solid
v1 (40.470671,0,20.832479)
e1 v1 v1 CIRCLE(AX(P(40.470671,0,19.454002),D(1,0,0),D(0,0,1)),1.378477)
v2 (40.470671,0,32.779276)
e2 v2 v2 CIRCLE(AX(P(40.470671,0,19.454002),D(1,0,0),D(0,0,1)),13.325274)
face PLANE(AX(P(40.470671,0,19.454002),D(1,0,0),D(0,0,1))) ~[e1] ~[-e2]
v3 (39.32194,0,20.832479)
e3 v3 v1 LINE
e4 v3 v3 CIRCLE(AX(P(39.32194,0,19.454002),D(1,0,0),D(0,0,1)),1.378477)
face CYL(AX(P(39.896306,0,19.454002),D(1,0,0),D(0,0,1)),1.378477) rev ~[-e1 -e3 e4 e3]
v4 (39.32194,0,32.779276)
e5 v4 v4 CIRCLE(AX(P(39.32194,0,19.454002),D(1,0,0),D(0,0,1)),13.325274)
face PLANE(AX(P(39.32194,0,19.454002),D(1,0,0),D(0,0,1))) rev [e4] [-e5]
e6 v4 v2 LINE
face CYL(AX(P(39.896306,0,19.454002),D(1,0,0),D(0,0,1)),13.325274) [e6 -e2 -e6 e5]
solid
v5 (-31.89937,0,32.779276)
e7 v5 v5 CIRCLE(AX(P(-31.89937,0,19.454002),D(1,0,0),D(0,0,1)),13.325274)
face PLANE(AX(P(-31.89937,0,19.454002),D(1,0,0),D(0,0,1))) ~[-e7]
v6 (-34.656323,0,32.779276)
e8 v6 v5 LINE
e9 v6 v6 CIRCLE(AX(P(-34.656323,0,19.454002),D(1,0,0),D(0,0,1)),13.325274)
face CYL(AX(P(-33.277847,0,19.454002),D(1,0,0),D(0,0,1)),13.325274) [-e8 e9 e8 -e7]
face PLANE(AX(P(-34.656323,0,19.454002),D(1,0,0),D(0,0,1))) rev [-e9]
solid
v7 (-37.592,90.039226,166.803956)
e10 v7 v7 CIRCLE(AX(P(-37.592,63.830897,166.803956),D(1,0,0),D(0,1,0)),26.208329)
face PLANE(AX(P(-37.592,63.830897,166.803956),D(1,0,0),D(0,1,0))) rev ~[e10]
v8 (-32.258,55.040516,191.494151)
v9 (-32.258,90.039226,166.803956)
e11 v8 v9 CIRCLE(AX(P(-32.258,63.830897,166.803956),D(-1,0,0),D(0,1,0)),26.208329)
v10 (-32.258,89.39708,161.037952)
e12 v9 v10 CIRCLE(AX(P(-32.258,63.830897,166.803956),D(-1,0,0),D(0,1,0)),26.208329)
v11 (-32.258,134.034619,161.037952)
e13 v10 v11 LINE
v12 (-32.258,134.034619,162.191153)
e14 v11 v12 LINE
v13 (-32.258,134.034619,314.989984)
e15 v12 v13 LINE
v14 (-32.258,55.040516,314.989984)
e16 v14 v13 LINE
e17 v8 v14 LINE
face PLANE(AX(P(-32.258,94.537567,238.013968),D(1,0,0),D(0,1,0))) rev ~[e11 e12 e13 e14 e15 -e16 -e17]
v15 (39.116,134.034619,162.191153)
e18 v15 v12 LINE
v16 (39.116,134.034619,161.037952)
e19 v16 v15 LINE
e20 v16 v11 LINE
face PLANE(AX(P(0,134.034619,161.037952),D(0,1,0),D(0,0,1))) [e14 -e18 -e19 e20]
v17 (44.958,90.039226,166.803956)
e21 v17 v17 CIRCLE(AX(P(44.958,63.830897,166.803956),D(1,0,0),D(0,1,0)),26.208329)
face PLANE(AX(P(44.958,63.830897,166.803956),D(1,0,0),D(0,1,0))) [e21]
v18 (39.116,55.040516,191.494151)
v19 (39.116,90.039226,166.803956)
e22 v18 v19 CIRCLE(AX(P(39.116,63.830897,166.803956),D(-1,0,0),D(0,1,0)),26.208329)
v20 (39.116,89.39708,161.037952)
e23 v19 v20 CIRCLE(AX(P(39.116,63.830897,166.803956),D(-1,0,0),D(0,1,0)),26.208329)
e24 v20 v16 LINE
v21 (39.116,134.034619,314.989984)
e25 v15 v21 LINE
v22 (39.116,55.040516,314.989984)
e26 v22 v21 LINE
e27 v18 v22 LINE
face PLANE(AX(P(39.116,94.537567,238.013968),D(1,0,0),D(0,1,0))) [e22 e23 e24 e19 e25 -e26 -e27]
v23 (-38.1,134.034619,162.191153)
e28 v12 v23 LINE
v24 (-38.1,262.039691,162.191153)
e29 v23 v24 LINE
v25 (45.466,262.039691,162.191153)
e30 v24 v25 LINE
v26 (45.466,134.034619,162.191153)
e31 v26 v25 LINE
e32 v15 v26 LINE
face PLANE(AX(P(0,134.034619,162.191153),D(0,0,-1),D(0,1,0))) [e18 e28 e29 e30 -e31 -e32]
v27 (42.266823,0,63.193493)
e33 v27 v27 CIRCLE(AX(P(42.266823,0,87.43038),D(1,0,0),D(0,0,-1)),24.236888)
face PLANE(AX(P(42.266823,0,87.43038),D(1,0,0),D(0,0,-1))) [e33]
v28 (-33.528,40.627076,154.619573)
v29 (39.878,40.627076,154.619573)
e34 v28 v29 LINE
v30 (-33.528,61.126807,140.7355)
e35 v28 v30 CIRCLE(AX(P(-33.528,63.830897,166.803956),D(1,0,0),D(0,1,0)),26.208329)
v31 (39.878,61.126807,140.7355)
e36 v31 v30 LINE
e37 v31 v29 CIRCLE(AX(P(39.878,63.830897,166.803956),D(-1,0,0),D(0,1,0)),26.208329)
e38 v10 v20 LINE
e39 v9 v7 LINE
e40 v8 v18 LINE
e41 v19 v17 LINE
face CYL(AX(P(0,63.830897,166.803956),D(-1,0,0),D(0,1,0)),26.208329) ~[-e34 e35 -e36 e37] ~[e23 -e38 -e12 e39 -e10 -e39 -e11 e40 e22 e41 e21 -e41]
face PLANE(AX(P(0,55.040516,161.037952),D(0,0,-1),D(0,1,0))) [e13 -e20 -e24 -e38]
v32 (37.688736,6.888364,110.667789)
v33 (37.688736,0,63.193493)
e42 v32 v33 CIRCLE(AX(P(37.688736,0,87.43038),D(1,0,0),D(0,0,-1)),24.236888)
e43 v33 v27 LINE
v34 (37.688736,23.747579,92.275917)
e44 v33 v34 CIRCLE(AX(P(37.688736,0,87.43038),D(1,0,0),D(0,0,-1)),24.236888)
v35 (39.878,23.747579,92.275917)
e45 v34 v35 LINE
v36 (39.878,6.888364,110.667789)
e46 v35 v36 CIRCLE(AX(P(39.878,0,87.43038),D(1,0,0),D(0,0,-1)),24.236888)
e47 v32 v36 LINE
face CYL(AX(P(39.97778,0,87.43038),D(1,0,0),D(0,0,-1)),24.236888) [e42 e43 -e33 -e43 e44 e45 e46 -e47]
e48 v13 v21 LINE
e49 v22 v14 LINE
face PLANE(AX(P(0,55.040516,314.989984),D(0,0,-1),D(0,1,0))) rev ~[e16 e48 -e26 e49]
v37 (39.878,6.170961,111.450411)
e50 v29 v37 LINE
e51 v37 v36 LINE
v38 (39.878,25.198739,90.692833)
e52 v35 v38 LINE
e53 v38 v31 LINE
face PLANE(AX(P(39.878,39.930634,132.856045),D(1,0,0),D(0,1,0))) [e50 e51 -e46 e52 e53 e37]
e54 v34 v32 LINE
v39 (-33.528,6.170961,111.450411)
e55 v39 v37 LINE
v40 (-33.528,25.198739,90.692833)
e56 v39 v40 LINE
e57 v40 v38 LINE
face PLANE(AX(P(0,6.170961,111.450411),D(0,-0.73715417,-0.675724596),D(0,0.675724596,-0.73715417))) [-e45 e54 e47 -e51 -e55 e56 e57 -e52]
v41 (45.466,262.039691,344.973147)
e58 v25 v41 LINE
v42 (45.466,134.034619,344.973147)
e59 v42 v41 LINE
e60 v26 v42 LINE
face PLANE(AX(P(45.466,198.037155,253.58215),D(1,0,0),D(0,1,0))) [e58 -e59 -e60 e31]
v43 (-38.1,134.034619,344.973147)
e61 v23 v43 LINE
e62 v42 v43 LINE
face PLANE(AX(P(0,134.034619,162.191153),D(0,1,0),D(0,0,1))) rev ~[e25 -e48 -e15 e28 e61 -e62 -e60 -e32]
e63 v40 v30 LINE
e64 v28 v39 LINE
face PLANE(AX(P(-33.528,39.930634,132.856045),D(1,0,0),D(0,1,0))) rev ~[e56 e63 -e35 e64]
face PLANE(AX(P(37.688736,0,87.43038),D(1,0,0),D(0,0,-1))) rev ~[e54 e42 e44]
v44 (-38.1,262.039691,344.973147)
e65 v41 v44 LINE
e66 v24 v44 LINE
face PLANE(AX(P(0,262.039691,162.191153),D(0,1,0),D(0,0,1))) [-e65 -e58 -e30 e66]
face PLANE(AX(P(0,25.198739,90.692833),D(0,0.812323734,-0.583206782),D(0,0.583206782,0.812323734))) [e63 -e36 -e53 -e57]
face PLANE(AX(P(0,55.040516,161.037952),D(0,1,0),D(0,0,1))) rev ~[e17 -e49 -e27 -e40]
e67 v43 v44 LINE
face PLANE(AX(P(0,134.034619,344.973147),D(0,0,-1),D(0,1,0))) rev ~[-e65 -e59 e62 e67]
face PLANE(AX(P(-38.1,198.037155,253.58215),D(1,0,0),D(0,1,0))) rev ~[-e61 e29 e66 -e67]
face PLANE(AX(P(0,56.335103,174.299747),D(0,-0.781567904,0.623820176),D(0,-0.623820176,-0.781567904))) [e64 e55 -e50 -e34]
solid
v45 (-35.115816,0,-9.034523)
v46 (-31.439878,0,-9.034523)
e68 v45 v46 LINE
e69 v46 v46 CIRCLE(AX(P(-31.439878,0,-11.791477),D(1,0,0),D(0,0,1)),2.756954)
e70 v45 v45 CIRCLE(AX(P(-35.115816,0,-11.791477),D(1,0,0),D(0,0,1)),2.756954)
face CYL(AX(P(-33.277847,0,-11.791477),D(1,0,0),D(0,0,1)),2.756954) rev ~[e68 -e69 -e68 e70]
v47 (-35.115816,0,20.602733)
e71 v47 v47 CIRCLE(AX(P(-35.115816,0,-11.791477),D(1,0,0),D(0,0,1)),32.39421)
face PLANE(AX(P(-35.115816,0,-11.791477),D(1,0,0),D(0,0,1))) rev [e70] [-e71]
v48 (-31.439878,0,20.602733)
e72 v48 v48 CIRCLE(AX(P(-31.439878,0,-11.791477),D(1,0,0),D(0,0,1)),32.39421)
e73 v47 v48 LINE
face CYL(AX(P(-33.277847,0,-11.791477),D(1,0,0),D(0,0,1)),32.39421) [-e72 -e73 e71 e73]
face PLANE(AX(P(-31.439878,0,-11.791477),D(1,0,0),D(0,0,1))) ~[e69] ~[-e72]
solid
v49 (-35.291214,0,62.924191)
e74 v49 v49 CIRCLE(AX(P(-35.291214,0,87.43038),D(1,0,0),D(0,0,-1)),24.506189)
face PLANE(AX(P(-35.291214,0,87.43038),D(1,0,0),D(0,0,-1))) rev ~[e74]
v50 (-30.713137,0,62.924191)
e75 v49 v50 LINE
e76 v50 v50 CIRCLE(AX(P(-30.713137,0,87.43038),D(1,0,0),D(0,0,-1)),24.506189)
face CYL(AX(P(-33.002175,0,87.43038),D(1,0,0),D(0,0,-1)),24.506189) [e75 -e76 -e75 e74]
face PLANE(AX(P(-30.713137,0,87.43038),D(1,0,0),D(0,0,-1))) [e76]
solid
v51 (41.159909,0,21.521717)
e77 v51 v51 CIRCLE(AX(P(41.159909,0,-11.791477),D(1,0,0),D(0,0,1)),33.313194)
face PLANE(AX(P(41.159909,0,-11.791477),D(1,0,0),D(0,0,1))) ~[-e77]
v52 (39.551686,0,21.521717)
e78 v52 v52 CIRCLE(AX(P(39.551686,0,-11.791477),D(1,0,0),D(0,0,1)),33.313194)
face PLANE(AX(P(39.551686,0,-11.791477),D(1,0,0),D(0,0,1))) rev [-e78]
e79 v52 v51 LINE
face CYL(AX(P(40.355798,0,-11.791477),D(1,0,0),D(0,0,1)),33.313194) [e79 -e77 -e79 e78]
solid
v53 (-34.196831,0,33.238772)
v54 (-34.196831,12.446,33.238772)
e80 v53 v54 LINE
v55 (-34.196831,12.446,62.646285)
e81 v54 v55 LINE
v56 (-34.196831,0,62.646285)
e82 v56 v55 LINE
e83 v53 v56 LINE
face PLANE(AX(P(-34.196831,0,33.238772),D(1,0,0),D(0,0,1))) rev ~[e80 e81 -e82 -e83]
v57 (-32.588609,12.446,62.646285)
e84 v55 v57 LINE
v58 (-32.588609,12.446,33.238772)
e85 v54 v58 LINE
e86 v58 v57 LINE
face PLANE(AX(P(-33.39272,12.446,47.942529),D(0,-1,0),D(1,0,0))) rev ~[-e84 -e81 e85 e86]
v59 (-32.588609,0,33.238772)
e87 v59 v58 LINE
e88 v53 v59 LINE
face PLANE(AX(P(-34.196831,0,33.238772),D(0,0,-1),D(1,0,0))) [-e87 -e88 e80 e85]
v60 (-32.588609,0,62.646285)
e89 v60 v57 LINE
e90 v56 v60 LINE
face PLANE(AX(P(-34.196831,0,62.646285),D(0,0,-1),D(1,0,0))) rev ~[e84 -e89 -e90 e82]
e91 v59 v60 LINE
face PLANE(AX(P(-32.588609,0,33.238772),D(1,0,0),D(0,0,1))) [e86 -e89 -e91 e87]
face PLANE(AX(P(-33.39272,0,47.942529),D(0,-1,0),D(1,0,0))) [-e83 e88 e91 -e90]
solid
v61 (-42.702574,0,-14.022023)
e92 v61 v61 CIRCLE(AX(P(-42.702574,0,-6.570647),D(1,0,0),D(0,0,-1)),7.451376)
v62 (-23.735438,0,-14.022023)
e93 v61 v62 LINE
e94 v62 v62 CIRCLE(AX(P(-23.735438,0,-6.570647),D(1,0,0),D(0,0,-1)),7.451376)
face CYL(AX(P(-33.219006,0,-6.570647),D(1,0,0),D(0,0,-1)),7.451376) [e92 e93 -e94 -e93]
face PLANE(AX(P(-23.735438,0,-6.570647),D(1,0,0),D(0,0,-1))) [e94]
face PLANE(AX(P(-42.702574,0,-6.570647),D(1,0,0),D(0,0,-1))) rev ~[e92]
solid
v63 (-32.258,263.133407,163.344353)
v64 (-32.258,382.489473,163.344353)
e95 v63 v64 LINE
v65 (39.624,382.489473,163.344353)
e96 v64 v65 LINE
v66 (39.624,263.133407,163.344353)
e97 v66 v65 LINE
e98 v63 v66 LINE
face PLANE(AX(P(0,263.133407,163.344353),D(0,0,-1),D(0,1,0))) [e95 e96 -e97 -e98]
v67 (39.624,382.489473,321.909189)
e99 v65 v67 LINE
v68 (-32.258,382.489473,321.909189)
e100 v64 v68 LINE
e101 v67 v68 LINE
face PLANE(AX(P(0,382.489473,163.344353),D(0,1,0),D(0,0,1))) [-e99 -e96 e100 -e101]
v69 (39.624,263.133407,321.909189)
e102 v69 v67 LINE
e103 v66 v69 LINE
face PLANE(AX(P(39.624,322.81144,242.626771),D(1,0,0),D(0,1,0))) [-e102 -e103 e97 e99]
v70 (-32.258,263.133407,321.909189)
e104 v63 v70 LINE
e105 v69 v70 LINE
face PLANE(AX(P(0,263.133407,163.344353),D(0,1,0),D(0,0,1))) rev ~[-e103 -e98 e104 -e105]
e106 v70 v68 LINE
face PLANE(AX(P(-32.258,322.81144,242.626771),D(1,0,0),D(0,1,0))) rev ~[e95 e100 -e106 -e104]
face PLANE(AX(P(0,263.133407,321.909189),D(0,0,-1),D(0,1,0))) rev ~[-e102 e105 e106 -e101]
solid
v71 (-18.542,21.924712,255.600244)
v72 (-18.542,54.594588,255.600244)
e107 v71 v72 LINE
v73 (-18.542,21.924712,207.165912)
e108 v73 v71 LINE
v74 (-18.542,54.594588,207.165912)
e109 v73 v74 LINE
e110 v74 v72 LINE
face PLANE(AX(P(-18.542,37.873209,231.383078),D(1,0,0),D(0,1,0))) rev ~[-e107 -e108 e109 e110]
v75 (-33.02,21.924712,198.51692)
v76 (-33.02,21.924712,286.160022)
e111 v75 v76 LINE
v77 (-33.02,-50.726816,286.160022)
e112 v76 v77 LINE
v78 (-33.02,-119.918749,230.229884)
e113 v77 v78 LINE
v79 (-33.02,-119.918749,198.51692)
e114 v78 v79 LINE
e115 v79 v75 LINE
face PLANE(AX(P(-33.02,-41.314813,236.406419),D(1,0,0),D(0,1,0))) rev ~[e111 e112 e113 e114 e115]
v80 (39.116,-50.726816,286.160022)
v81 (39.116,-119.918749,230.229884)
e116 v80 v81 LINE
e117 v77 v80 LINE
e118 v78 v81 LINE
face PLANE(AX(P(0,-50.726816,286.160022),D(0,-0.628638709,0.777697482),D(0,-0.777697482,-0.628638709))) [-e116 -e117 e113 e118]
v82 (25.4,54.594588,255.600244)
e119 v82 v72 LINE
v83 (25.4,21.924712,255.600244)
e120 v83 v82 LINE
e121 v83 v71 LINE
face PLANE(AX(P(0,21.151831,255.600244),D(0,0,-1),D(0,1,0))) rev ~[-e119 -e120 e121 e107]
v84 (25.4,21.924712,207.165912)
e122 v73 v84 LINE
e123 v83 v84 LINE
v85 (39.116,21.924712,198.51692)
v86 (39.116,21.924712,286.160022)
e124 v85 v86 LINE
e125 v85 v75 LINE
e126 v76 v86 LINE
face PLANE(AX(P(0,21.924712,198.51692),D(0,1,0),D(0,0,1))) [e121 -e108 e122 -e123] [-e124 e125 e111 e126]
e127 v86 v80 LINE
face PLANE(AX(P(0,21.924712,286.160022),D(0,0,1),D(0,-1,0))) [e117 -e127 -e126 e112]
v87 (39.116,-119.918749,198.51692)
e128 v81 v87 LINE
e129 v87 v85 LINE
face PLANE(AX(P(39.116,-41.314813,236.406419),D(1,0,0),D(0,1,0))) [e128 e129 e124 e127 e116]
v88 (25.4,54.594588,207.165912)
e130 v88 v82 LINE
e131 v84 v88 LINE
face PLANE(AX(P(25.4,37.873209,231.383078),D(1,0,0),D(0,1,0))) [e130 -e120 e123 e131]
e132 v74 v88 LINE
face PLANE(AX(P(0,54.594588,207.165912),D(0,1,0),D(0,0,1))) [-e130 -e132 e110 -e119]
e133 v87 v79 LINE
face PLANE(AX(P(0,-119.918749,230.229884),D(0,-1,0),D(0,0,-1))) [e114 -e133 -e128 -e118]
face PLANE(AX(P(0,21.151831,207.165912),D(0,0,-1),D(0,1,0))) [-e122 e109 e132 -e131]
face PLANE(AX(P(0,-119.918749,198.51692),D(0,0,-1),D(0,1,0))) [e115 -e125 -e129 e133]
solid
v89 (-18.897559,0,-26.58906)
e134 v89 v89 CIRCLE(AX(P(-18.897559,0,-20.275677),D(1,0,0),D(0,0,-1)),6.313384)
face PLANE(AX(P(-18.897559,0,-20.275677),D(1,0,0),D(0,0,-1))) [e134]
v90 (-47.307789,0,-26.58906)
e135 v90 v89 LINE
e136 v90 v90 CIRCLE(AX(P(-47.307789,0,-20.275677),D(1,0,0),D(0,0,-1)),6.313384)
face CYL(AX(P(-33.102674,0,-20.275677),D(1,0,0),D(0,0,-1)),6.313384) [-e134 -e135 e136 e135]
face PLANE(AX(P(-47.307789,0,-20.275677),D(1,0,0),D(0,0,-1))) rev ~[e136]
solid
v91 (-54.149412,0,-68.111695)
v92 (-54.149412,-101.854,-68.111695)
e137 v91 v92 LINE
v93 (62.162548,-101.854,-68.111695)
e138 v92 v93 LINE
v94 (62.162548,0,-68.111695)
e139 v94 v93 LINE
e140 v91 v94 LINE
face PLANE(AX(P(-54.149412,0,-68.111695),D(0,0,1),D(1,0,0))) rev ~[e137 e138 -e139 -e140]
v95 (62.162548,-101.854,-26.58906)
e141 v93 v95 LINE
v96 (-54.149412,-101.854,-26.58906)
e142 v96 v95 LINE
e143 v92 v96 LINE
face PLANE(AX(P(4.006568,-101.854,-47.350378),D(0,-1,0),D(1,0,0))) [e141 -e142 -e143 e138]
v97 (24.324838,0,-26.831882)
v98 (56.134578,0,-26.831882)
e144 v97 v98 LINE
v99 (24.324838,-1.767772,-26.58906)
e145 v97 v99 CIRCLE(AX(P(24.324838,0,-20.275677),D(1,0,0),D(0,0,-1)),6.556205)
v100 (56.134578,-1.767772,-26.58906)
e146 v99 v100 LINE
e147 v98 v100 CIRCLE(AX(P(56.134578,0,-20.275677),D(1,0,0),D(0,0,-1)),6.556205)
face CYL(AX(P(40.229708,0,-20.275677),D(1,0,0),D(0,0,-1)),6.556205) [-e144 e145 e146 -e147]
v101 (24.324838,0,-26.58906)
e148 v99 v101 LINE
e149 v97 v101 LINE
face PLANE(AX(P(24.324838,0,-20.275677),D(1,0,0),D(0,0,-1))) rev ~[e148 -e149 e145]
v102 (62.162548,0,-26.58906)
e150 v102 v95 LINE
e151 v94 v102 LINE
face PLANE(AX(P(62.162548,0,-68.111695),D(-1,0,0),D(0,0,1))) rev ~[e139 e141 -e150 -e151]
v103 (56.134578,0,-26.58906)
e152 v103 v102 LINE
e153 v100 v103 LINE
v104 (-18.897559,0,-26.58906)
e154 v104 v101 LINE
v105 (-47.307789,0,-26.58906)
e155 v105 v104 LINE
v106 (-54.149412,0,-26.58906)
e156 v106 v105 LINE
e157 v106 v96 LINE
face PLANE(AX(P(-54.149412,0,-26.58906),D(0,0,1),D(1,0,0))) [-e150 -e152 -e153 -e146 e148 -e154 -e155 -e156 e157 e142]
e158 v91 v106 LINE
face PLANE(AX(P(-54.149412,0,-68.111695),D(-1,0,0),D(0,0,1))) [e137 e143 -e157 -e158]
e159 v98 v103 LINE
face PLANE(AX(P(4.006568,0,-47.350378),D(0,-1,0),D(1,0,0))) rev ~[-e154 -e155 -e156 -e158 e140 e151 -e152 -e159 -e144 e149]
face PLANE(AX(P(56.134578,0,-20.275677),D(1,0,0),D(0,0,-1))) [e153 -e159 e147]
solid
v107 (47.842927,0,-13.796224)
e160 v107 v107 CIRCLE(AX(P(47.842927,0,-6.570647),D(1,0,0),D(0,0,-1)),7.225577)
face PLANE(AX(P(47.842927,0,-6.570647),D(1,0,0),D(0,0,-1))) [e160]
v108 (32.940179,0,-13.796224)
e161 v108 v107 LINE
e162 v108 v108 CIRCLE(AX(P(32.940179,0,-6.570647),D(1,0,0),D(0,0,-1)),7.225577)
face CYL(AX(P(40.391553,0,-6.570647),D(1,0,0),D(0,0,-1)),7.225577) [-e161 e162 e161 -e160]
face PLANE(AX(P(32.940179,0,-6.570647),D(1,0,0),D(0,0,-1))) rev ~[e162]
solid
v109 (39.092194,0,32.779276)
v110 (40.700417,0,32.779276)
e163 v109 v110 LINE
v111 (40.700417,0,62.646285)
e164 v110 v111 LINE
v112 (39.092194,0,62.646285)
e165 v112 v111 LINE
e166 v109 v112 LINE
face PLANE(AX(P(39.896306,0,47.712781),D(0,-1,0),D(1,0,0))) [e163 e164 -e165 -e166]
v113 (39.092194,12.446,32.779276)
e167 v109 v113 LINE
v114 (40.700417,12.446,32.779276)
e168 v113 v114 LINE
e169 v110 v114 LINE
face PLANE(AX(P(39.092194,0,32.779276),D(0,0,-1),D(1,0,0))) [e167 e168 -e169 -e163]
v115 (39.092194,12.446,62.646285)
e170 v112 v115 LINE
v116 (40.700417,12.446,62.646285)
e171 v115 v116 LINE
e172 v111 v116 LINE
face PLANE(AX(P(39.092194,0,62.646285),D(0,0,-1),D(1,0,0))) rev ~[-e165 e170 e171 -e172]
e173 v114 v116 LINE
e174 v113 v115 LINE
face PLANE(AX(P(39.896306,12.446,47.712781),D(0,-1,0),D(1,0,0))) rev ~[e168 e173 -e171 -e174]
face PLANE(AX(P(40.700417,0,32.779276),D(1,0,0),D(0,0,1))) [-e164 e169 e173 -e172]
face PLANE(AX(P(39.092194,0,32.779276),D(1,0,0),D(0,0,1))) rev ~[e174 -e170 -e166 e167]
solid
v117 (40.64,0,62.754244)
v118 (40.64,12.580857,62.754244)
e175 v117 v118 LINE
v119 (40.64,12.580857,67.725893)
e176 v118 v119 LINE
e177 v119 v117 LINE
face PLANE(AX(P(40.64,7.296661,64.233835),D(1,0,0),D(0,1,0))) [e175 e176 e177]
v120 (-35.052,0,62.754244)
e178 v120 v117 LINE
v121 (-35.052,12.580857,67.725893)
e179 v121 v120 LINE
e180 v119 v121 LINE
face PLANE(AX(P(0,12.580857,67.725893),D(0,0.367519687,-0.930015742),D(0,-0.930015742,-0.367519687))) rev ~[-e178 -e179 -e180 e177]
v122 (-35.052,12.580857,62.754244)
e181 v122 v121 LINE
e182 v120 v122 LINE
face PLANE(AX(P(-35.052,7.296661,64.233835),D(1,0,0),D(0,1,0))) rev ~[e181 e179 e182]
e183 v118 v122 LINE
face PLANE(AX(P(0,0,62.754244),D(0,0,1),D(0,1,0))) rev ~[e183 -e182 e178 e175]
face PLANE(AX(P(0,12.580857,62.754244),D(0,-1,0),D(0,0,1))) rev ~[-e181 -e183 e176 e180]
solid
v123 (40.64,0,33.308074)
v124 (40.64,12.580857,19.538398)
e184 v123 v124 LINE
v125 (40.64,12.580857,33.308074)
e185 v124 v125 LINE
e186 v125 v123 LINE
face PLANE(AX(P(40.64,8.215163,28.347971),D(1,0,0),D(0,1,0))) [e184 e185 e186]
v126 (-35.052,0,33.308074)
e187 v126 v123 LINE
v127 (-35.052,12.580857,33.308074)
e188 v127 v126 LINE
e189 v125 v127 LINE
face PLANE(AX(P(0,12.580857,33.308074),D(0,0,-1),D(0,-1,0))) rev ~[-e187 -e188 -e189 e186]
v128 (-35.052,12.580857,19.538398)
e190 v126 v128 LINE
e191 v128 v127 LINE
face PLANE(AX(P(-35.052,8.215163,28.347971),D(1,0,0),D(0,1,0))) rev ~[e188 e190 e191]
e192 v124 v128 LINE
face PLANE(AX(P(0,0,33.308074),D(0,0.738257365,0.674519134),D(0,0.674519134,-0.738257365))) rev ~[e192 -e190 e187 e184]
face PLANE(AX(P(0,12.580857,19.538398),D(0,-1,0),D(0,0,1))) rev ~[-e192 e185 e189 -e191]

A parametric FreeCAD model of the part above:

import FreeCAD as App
import Part
import Sketcher
from FreeCAD import Vector
Q = App.Units.Quantity

doc = App.newDocument("Part")
body = doc.addObject("PartDesign::Body", "Body")
body.AllowCompound = True

sketch1 = doc.addObject("Sketcher::SketchObject", "Sketch")
body.addObject(sketch1)
sketch1.AttachmentSupport = (doc.XZ_Plane, [""])
sketch1.MapMode = "FlatFace"
sketch1.addGeometry([
    Part.LineSegment(Vector(-54, -27, 0), Vector(-54, -68, 0)),
    Part.LineSegment(Vector(-54, -68, 0), Vector(62, -68, 0)),
    Part.LineSegment(Vector(62, -68, 0), Vector(62, -27, 0)),
    Part.LineSegment(Vector(62, -27, 0), Vector(-54, -27, 0)),
], False)
sketch1.addConstraint([
    Sketcher.Constraint("Coincident", 0, 2, 1, 1),
    Sketcher.Constraint("Coincident", 1, 2, 2, 1),
    Sketcher.Constraint("Coincident", 2, 2, 3, 1),
    Sketcher.Constraint("Coincident", 3, 2, 0, 1),
    Sketcher.Constraint("Vertical", 0),
    Sketcher.Constraint("Horizontal", 1),
    Sketcher.Constraint("Vertical", 2),
    Sketcher.Constraint("Horizontal", 3),
    Sketcher.Constraint("DistanceX", 1, 1, 1, 2, Q("116.31196 mm")),
    Sketcher.Constraint("DistanceY", 0, 2, 0, 1, Q("41.522635 mm")),
    Sketcher.Constraint("DistanceX", 0, 2, -1, 1, Q("54.149412 mm")),
    Sketcher.Constraint("DistanceY", 2, 2, -1, 1, Q("26.58906 mm")),
])
pad1 = doc.addObject("PartDesign::Pad", "Pad")
body.addObject(pad1)
pad1.Profile = sketch1
pad1.Length = Q("4.01 in")

sketch2 = doc.addObject("Sketcher::SketchObject", "Sketch001")
body.addObject(sketch2)
sketch2.AttachmentSupport = (doc.XZ_Plane, [""])
sketch2.MapMode = "FlatFace"
sketch2.addGeometry([
    Part.LineSegment(Vector(24, -20, 0), Vector(24, -27, 0)),
    Part.LineSegment(Vector(24, -27, 0), Vector(56, -27, 0)),
    Part.LineSegment(Vector(56, -27, 0), Vector(56, -20, 0)),
    Part.LineSegment(Vector(56, -20, 0), Vector(24, -20, 0)),
    Part.LineSegment(Vector(-47, -20, 0), Vector(-47, -27, 0)),
    Part.LineSegment(Vector(-47, -27, 0), Vector(-19, -27, 0)),
    Part.LineSegment(Vector(-19, -27, 0), Vector(-19, -20, 0)),
    Part.LineSegment(Vector(-19, -20, 0), Vector(-47, -20, 0)),
], False)
sketch2.addGeometry(Part.LineSegment(Vector(-47, -20, 0), Vector(56, -20, 0)), True)
sketch2.addConstraint([
    Sketcher.Constraint("Coincident", 0, 2, 1, 1),
    Sketcher.Constraint("Coincident", 1, 2, 2, 1),
    Sketcher.Constraint("Coincident", 2, 2, 3, 1),
    Sketcher.Constraint("Coincident", 3, 2, 0, 1),
    Sketcher.Constraint("Coincident", 4, 2, 5, 1),
    Sketcher.Constraint("Coincident", 5, 2, 6, 1),
    Sketcher.Constraint("Coincident", 6, 2, 7, 1),
    Sketcher.Constraint("Coincident", 7, 2, 4, 1),
    Sketcher.Constraint("Vertical", 0),
    Sketcher.Constraint("Horizontal", 1),
    Sketcher.Constraint("Vertical", 2),
    Sketcher.Constraint("Horizontal", 3),
    Sketcher.Constraint("Vertical", 4),
    Sketcher.Constraint("Horizontal", 5),
    Sketcher.Constraint("Vertical", 6),
    Sketcher.Constraint("Horizontal", 7),
    Sketcher.Constraint("Horizontal", 8),
    Sketcher.Constraint("Coincident", 8, 1, 7, 2),
    Sketcher.Constraint("Coincident", 8, 2, 2, 2),
    Sketcher.Constraint("DistanceX", 1, 1, 1, 2, Q("31.80974 mm")),
    Sketcher.Constraint("DistanceX", 5, 1, 5, 2, Q("28.41023 mm")),
    Sketcher.Constraint("DistanceX", 8, 1, 8, 2, Q("103.442367 mm")),
    Sketcher.Constraint("DistanceY", 0, 2, 0, 1, Q("6.556205 mm")),
    Sketcher.Constraint("DistanceY", 4, 2, 4, 1, Q("6.313384 mm")),
    Sketcher.Constraint("DistanceX", -1, 1, 0, 2, Q("24.324838 mm")),
    Sketcher.Constraint("DistanceY", 4, 2, -1, 1, Q("26.58906 mm")),
])
revolution = doc.addObject("PartDesign::Revolution", "Revolution")
body.addObject(revolution)
revolution.Profile = sketch2
revolution.ReferenceAxis = (sketch2, ["Axis0"])
revolution.Angle = 360
body2 = doc.addObject("PartDesign::Body", "Body001")

sketch3 = doc.addObject("Sketcher::SketchObject", "Sketch002")
body2.addObject(sketch3)
sketch3.AttachmentSupport = (doc.getObject("XZ_Plane001"), [""])
sketch3.MapMode = "FlatFace"
sketch3.addGeometry([
    Part.LineSegment(Vector(-43, -7, 0), Vector(-43, -14, 0)),
    Part.LineSegment(Vector(-43, -14, 0), Vector(-24, -14, 0)),
    Part.LineSegment(Vector(-24, -14, 0), Vector(-24, -7, 0)),
    Part.LineSegment(Vector(-24, -7, 0), Vector(-43, -7, 0)),
], False)
sketch3.addGeometry(Part.LineSegment(Vector(-43, -7, 0), Vector(-24, -7, 0)), True)
sketch3.addConstraint([
    Sketcher.Constraint("Coincident", 0, 2, 1, 1),
    Sketcher.Constraint("Coincident", 1, 2, 2, 1),
    Sketcher.Constraint("Coincident", 2, 2, 3, 1),
    Sketcher.Constraint("Coincident", 3, 2, 0, 1),
    Sketcher.Constraint("Vertical", 0),
    Sketcher.Constraint("Horizontal", 1),
    Sketcher.Constraint("Vertical", 2),
    Sketcher.Constraint("Horizontal", 3),
    Sketcher.Constraint("Horizontal", 4),
    Sketcher.Constraint("Coincident", 4, 1, 3, 2),
    Sketcher.Constraint("Vertical", 1, 2, 4, 2),
    Sketcher.Constraint("DistanceX", 1, 1, 1, 2, Q("18.967137 mm")),
    Sketcher.Constraint("DistanceY", 0, 2, 0, 1, Q("7.451376 mm")),
    Sketcher.Constraint("DistanceX", 0, 2, -1, 1, Q("42.702574 mm")),
    Sketcher.Constraint("DistanceY", 0, 2, -1, 1, Q("14.022023 mm")),
])
revolution2 = doc.addObject("PartDesign::Revolution", "Revolution001")
body2.addObject(revolution2)
revolution2.Profile = sketch3
revolution2.ReferenceAxis = (sketch3, ["Axis0"])
revolution2.Angle = 360
body3 = doc.addObject("PartDesign::Body", "Body002")

sketch4 = doc.addObject("Sketcher::SketchObject", "Sketch003")
body3.addObject(sketch4)
sketch4.AttachmentSupport = (doc.getObject("XZ_Plane002"), [""])
sketch4.MapMode = "FlatFace"
sketch4.addGeometry([
    Part.LineSegment(Vector(33, -7, 0), Vector(33, -14, 0)),
    Part.LineSegment(Vector(33, -14, 0), Vector(48, -14, 0)),
    Part.LineSegment(Vector(48, -14, 0), Vector(48, -7, 0)),
    Part.LineSegment(Vector(48, -7, 0), Vector(33, -7, 0)),
], False)
sketch4.addGeometry(Part.LineSegment(Vector(33, -7, 0), Vector(48, -7, 0)), True)
sketch4.addConstraint([
    Sketcher.Constraint("Coincident", 0, 2, 1, 1),
    Sketcher.Constraint("Coincident", 1, 2, 2, 1),
    Sketcher.Constraint("Coincident", 2, 2, 3, 1),
    Sketcher.Constraint("Coincident", 3, 2, 0, 1),
    Sketcher.Constraint("Vertical", 0),
    Sketcher.Constraint("Horizontal", 1),
    Sketcher.Constraint("Vertical", 2),
    Sketcher.Constraint("Horizontal", 3),
    Sketcher.Constraint("Horizontal", 4),
    Sketcher.Constraint("Coincident", 4, 1, 3, 2),
    Sketcher.Constraint("Vertical", 1, 2, 4, 2),
    Sketcher.Constraint("DistanceX", 1, 1, 1, 2, Q("14.902748 mm")),
    Sketcher.Constraint("DistanceY", 0, 2, 0, 1, Q("7.225577 mm")),
    Sketcher.Constraint("DistanceX", -1, 1, 0, 2, Q("32.940179 mm")),
    Sketcher.Constraint("DistanceY", 0, 2, -1, 1, Q("13.796224 mm")),
])
revolution3 = doc.addObject("PartDesign::Revolution", "Revolution002")
body3.addObject(revolution3)
revolution3.Profile = sketch4
revolution3.ReferenceAxis = (sketch4, ["Axis0"])
revolution3.Angle = 360
body4 = doc.addObject("PartDesign::Body", "Body003")

sketch5 = doc.addObject("Sketcher::SketchObject", "Sketch004")
body4.addObject(sketch5)
sketch5.AttachmentSupport = (doc.getObject("XZ_Plane003"), [""])
sketch5.MapMode = "FlatFace"
sketch5.addGeometry([
    Part.LineSegment(Vector(-35.1, 20.6, 0), Vector(-35.1, -9, 0)),
    Part.LineSegment(Vector(-35.1, -9, 0), Vector(-31.4, -9, 0)),
    Part.LineSegment(Vector(-31.4, -9, 0), Vector(-31.4, 20.6, 0)),
    Part.LineSegment(Vector(-31.4, 20.6, 0), Vector(-35.1, 20.6, 0)),
], False)
sketch5.addGeometry(Part.LineSegment(Vector(-35.1, -11.8, 0), Vector(-31.4, -11.8, 0)), True)
sketch5.addConstraint([
    Sketcher.Constraint("Coincident", 0, 2, 1, 1),
    Sketcher.Constraint("Coincident", 1, 2, 2, 1),
    Sketcher.Constraint("Coincident", 2, 2, 3, 1),
    Sketcher.Constraint("Coincident", 3, 2, 0, 1),
    Sketcher.Constraint("Vertical", 0),
    Sketcher.Constraint("Horizontal", 1),
    Sketcher.Constraint("Vertical", 2),
    Sketcher.Constraint("Horizontal", 3),
    Sketcher.Constraint("Horizontal", 4),
    Sketcher.Constraint("Vertical", 3, 2, 4, 1),
    Sketcher.Constraint("Vertical", 2, 2, 4, 2),
    Sketcher.Constraint("DistanceX", 1, 1, 1, 2, Q("3.675938 mm")),
    Sketcher.Constraint("DistanceY", 0, 2, 0, 1, Q("29.637256 mm")),
    Sketcher.Constraint("DistanceX", 1, 2, -1, 1, Q("31.439878 mm")),
    Sketcher.Constraint("DistanceY", 4, 1, 3, 2, Q("32.39421 mm")),
    Sketcher.Constraint("DistanceY", 0, 2, -1, 1, Q("9.034523 mm")),
])
revolution4 = doc.addObject("PartDesign::Revolution", "Revolution003")
body4.addObject(revolution4)
revolution4.Profile = sketch5
revolution4.ReferenceAxis = (sketch5, ["Axis0"])
revolution4.Angle = 360
body5 = doc.addObject("PartDesign::Body", "Body004")

sketch6 = doc.addObject("Sketcher::SketchObject", "Sketch005")
body5.addObject(sketch6)
sketch6.AttachmentSupport = (doc.getObject("XZ_Plane004"), [""])
sketch6.MapMode = "FlatFace"
sketch6.addGeometry([
    Part.LineSegment(Vector(39.6, 21.5, 0), Vector(39.6, -11.8, 0)),
    Part.LineSegment(Vector(39.6, -11.8, 0), Vector(41.2, -11.8, 0)),
    Part.LineSegment(Vector(41.2, -11.8, 0), Vector(41.2, 21.5, 0)),
    Part.LineSegment(Vector(41.2, 21.5, 0), Vector(39.6, 21.5, 0)),
], False)
sketch6.addGeometry(Part.LineSegment(Vector(39.6, -11.8, 0), Vector(41.2, -11.8, 0)), True)
sketch6.addConstraint([
    Sketcher.Constraint("Coincident", 0, 2, 1, 1),
    Sketcher.Constraint("Coincident", 1, 2, 2, 1),
    Sketcher.Constraint("Coincident", 2, 2, 3, 1),
    Sketcher.Constraint("Coincident", 3, 2, 0, 1),
    Sketcher.Constraint("Vertical", 0),
    Sketcher.Constraint("Horizontal", 1),
    Sketcher.Constraint("Vertical", 2),
    Sketcher.Constraint("Horizontal", 3),
    Sketcher.Constraint("Horizontal", 4),
    Sketcher.Constraint("Coincident", 4, 1, 0, 2),
    Sketcher.Constraint("Vertical", 2, 2, 4, 2),
    Sketcher.Constraint("DistanceX", 1, 1, 1, 2, Q("1.608223 mm")),
    Sketcher.Constraint("DistanceY", 0, 2, 0, 1, Q("33.313194 mm")),
    Sketcher.Constraint("DistanceX", -1, 1, 1, 2, Q("41.159909 mm")),
    Sketcher.Constraint("DistanceY", 0, 2, -1, 1, Q("11.791477 mm")),
])
revolution5 = doc.addObject("PartDesign::Revolution", "Revolution004")
body5.addObject(revolution5)
revolution5.Profile = sketch6
revolution5.ReferenceAxis = (sketch6, ["Axis0"])
revolution5.Angle = 360
body6 = doc.addObject("PartDesign::Body", "Body005")

sketch7 = doc.addObject("Sketcher::SketchObject", "Sketch006")
body6.addObject(sketch7)
sketch7.AttachmentSupport = (doc.getObject("XZ_Plane005"), [""])
sketch7.MapMode = "FlatFace"
sketch7.addGeometry([
    Part.LineSegment(Vector(-34.7, 32.8, 0), Vector(-34.7, 19.5, 0)),
    Part.LineSegment(Vector(-34.7, 19.5, 0), Vector(-31.9, 19.5, 0)),
    Part.LineSegment(Vector(-31.9, 19.5, 0), Vector(-31.9, 32.8, 0)),
    Part.LineSegment(Vector(-31.9, 32.8, 0), Vector(-34.7, 32.8, 0)),
], False)
sketch7.addGeometry(Part.LineSegment(Vector(-34.7, 19.5, 0), Vector(-31.9, 19.5, 0)), True)
sketch7.addConstraint([
    Sketcher.Constraint("Coincident", 0, 2, 1, 1),
    Sketcher.Constraint("Coincident", 1, 2, 2, 1),
    Sketcher.Constraint("Coincident", 2, 2, 3, 1),
    Sketcher.Constraint("Coincident", 3, 2, 0, 1),
    Sketcher.Constraint("Vertical", 0),
    Sketcher.Constraint("Horizontal", 1),
    Sketcher.Constraint("Vertical", 2),
    Sketcher.Constraint("Horizontal", 3),
    Sketcher.Constraint("Horizontal", 4),
    Sketcher.Constraint("Coincident", 4, 1, 0, 2),
    Sketcher.Constraint("Vertical", 2, 2, 4, 2),
    Sketcher.Constraint("DistanceX", 1, 1, 1, 2, Q("2.756953 mm")),
    Sketcher.Constraint("DistanceY", 0, 2, 0, 1, Q("13.325274 mm")),
    Sketcher.Constraint("DistanceX", 1, 2, -1, 1, Q("31.89937 mm")),
    Sketcher.Constraint("DistanceY", -1, 1, 0, 2, Q("19.454002 mm")),
])
revolution6 = doc.addObject("PartDesign::Revolution", "Revolution005")
body6.addObject(revolution6)
revolution6.Profile = sketch7
revolution6.ReferenceAxis = (sketch7, ["Axis0"])
revolution6.Angle = 360
body7 = doc.addObject("PartDesign::Body", "Body006")

sketch8 = doc.addObject("Sketcher::SketchObject", "Sketch007")
body7.addObject(sketch8)
sketch8.AttachmentSupport = (doc.getObject("XZ_Plane006"), [""])
sketch8.MapMode = "FlatFace"
sketch8.addGeometry([
    Part.LineSegment(Vector(39.3, 32.8, 0), Vector(39.3, 20.8, 0)),
    Part.LineSegment(Vector(39.3, 20.8, 0), Vector(40.5, 20.8, 0)),
    Part.LineSegment(Vector(40.5, 20.8, 0), Vector(40.5, 32.8, 0)),
    Part.LineSegment(Vector(40.5, 32.8, 0), Vector(39.3, 32.8, 0)),
], False)
sketch8.addGeometry(Part.LineSegment(Vector(39.3, 19.5, 0), Vector(40.5, 19.5, 0)), True)
sketch8.addConstraint([
    Sketcher.Constraint("Coincident", 0, 2, 1, 1),
    Sketcher.Constraint("Coincident", 1, 2, 2, 1),
    Sketcher.Constraint("Coincident", 2, 2, 3, 1),
    Sketcher.Constraint("Coincident", 3, 2, 0, 1),
    Sketcher.Constraint("Vertical", 0),
    Sketcher.Constraint("Horizontal", 1),
    Sketcher.Constraint("Vertical", 2),
    Sketcher.Constraint("Horizontal", 3),
    Sketcher.Constraint("Horizontal", 4),
    Sketcher.Constraint("Vertical", 3, 2, 4, 1),
    Sketcher.Constraint("Vertical", 2, 2, 4, 2),
    Sketcher.Constraint("DistanceX", 1, 1, 1, 2, Q("1.148731 mm")),
    Sketcher.Constraint("DistanceY", 0, 2, 0, 1, Q("11.946797 mm")),
    Sketcher.Constraint("DistanceX", -1, 1, 0, 2, Q("39.32194 mm")),
    Sketcher.Constraint("DistanceY", -1, 1, 0, 2, Q("20.832479 mm")),
    Sketcher.Constraint("DistanceY", -1, 1, 4, 1, Q("19.454002 mm")),
])
revolution7 = doc.addObject("PartDesign::Revolution", "Revolution006")
body7.addObject(revolution7)
revolution7.Profile = sketch8
revolution7.ReferenceAxis = (sketch8, ["Axis0"])
revolution7.Angle = 360
body8 = doc.addObject("PartDesign::Body", "Body007")

sketch9 = doc.addObject("Sketcher::SketchObject", "Sketch008")
body8.addObject(sketch9)
sketch9.AttachmentSupport = (doc.getObject("XZ_Plane007"), [""])
sketch9.MapMode = "FlatFace"
sketch9.addGeometry([
    Part.LineSegment(Vector(-34.2, 62.6, 0), Vector(-34.2, 33.2, 0)),
    Part.LineSegment(Vector(-34.2, 33.2, 0), Vector(-32.6, 33.2, 0)),
    Part.LineSegment(Vector(-32.6, 33.2, 0), Vector(-32.6, 62.6, 0)),
    Part.LineSegment(Vector(-32.6, 62.6, 0), Vector(-34.2, 62.6, 0)),
], False)
sketch9.addConstraint([
    Sketcher.Constraint("Coincident", 0, 2, 1, 1),
    Sketcher.Constraint("Coincident", 1, 2, 2, 1),
    Sketcher.Constraint("Coincident", 2, 2, 3, 1),
    Sketcher.Constraint("Coincident", 3, 2, 0, 1),
    Sketcher.Constraint("Vertical", 0),
    Sketcher.Constraint("Horizontal", 1),
    Sketcher.Constraint("Vertical", 2),
    Sketcher.Constraint("Horizontal", 3),
    Sketcher.Constraint("DistanceX", 1, 1, 1, 2, Q("1.608223 mm")),
    Sketcher.Constraint("DistanceY", 0, 2, 0, 1, Q("29.407512 mm")),
    Sketcher.Constraint("DistanceX", 0, 2, -1, 1, Q("34.196831 mm")),
    Sketcher.Constraint("DistanceY", -1, 1, 0, 2, Q("33.238772 mm")),
])
pad2 = doc.addObject("PartDesign::Pad", "Pad001")
body8.addObject(pad2)
pad2.Profile = sketch9
pad2.Length = Q("0.49 in")
pad2.Reversed = True
body9 = doc.addObject("PartDesign::Body", "Body008")

sketch10 = doc.addObject("Sketcher::SketchObject", "Sketch009")
body9.addObject(sketch10)
sketch10.AttachmentSupport = (doc.getObject("XZ_Plane008"), [""])
sketch10.MapMode = "FlatFace"
sketch10.addGeometry([
    Part.LineSegment(Vector(39.1, 62.6, 0), Vector(39.1, 32.8, 0)),
    Part.LineSegment(Vector(39.1, 32.8, 0), Vector(40.7, 32.8, 0)),
    Part.LineSegment(Vector(40.7, 32.8, 0), Vector(40.7, 62.6, 0)),
    Part.LineSegment(Vector(40.7, 62.6, 0), Vector(39.1, 62.6, 0)),
], False)
sketch10.addConstraint([
    Sketcher.Constraint("Coincident", 0, 2, 1, 1),
    Sketcher.Constraint("Coincident", 1, 2, 2, 1),
    Sketcher.Constraint("Coincident", 2, 2, 3, 1),
    Sketcher.Constraint("Coincident", 3, 2, 0, 1),
    Sketcher.Constraint("Vertical", 0),
    Sketcher.Constraint("Horizontal", 1),
    Sketcher.Constraint("Vertical", 2),
    Sketcher.Constraint("Horizontal", 3),
    Sketcher.Constraint("DistanceY", 0, 2, 0, 1, Q("29.867008 mm")),
    Sketcher.Constraint("DistanceX", 1, 1, 1, 2, Q("1.608223 mm")),
    Sketcher.Constraint("DistanceX", -1, 1, 0, 2, Q("39.092194 mm")),
    Sketcher.Constraint("DistanceY", -1, 1, 0, 2, Q("32.779276 mm")),
])
pad3 = doc.addObject("PartDesign::Pad", "Pad002")
body9.addObject(pad3)
pad3.Profile = sketch10
pad3.Length = Q("0.49 in")
pad3.Reversed = True
body10 = doc.addObject("PartDesign::Body", "Body009")

sketch11 = doc.addObject("Sketcher::SketchObject", "Sketch010")
body10.addObject(sketch11)
sketch11.AttachmentSupport = (doc.getObject("XZ_Plane009"), [""])
sketch11.MapMode = "FlatFace"
sketch11.addGeometry([
    Part.LineSegment(Vector(-35.3, 87.4, 0), Vector(-35.3, 62.9, 0)),
    Part.LineSegment(Vector(-35.3, 62.9, 0), Vector(-30.7, 62.9, 0)),
    Part.LineSegment(Vector(-30.7, 62.9, 0), Vector(-30.7, 87.4, 0)),
    Part.LineSegment(Vector(-30.7, 87.4, 0), Vector(-35.3, 87.4, 0)),
], False)
sketch11.addGeometry(Part.LineSegment(Vector(-35.3, 87.4, 0), Vector(-30.7, 87.4, 0)), True)
sketch11.addConstraint([
    Sketcher.Constraint("Coincident", 0, 2, 1, 1),
    Sketcher.Constraint("Coincident", 1, 2, 2, 1),
    Sketcher.Constraint("Coincident", 2, 2, 3, 1),
    Sketcher.Constraint("Coincident", 3, 2, 0, 1),
    Sketcher.Constraint("Vertical", 0),
    Sketcher.Constraint("Horizontal", 1),
    Sketcher.Constraint("Vertical", 2),
    Sketcher.Constraint("Horizontal", 3),
    Sketcher.Constraint("Horizontal", 4),
    Sketcher.Constraint("Coincident", 4, 1, 3, 2),
    Sketcher.Constraint("Vertical", 1, 2, 4, 2),
    Sketcher.Constraint("DistanceY", 0, 2, 0, 1, Q("24.506189 mm")),
    Sketcher.Constraint("DistanceX", 1, 1, 1, 2, Q("4.578076 mm")),
    Sketcher.Constraint("DistanceY", -1, 1, 0, 2, Q("62.924191 mm")),
    Sketcher.Constraint("DistanceX", 0, 2, -1, 1, Q("35.291214 mm")),
])
revolution8 = doc.addObject("PartDesign::Revolution", "Revolution007")
body10.addObject(revolution8)
revolution8.Profile = sketch11
revolution8.ReferenceAxis = (sketch11, ["Axis0"])
revolution8.Angle = 360
body11 = doc.addObject("PartDesign::Body", "Body010")

sketch12 = doc.addObject("Sketcher::SketchObject", "Sketch011")
body11.addObject(sketch12)
sketch12.AttachmentSupport = (doc.getObject("XZ_Plane010"), [""])
sketch12.MapMode = "FlatFace"
sketch12.addGeometry([
    Part.LineSegment(Vector(37.7, 87.4, 0), Vector(37.7, 63.2, 0)),
    Part.LineSegment(Vector(37.7, 63.2, 0), Vector(42.3, 63.2, 0)),
    Part.LineSegment(Vector(42.3, 63.2, 0), Vector(42.3, 87.4, 0)),
    Part.LineSegment(Vector(42.3, 87.4, 0), Vector(37.7, 87.4, 0)),
], False)
sketch12.addGeometry(Part.LineSegment(Vector(37.7, 87.4, 0), Vector(42.3, 87.4, 0)), True)
sketch12.addConstraint([
    Sketcher.Constraint("Coincident", 0, 2, 1, 1),
    Sketcher.Constraint("Coincident", 1, 2, 2, 1),
    Sketcher.Constraint("Coincident", 2, 2, 3, 1),
    Sketcher.Constraint("Coincident", 3, 2, 0, 1),
    Sketcher.Constraint("Vertical", 0),
    Sketcher.Constraint("Horizontal", 1),
    Sketcher.Constraint("Vertical", 2),
    Sketcher.Constraint("Horizontal", 3),
    Sketcher.Constraint("Horizontal", 4),
    Sketcher.Constraint("Coincident", 4, 1, 3, 2),
    Sketcher.Constraint("Vertical", 1, 2, 4, 2),
    Sketcher.Constraint("DistanceX", 1, 1, 1, 2, Q("4.578087 mm")),
    Sketcher.Constraint("DistanceY", 0, 2, 0, 1, Q("24.236888 mm")),
    Sketcher.Constraint("DistanceY", -1, 1, 2, 2, Q("87.43038 mm")),
    Sketcher.Constraint("DistanceX", -1, 1, 0, 2, Q("37.688736 mm")),
])
revolution9 = doc.addObject("PartDesign::Revolution", "Revolution008")
body11.addObject(revolution9)
revolution9.Profile = sketch12
revolution9.ReferenceAxis = (sketch12, ["Axis0"])
revolution9.Angle = 360

sketch13 = doc.addObject("Sketcher::SketchObject", "Sketch012")
body11.addObject(sketch13)
sketch13.AttachmentSupport = (doc.getObject("YZ_Plane010"), [""])
sketch13.MapMode = "FlatFace"
sketch13.addGeometry([
    Part.LineSegment(Vector(56, 174, 0), Vector(6, 111, 0)),
    Part.LineSegment(Vector(6, 111, 0), Vector(25, 91, 0)),
    Part.LineSegment(Vector(25, 91, 0), Vector(74, 158, 0)),
    Part.LineSegment(Vector(74, 158, 0), Vector(56, 174, 0)),
], False)
sketch13.addConstraint([
    Sketcher.Constraint("Coincident", 0, 2, 1, 1),
    Sketcher.Constraint("Coincident", 1, 2, 2, 1),
    Sketcher.Constraint("Coincident", 2, 2, 3, 1),
    Sketcher.Constraint("Coincident", 3, 2, 0, 1),
    Sketcher.Constraint("DistanceX", -1, 1, 0, 2, Q("6.170961 mm")),
    Sketcher.Constraint("DistanceY", -1, 1, 0, 2, Q("111.450411 mm")),
    Sketcher.Constraint("DistanceX", -1, 1, 1, 2, Q("25.198739 mm")),
    Sketcher.Constraint("DistanceX", -1, 1, 2, 2, Q("73.63309 mm")),
    Sketcher.Constraint("DistanceY", 1, 2, 0, 2, Q("20.757578 mm")),
    Sketcher.Constraint("DistanceY", 1, 2, 2, 2, Q("67.462131 mm")),
    Sketcher.Constraint("Distance", 0, Q("80.414427 mm")),
    Sketcher.Constraint("Distance", 3, Q("23.661664 mm")),
])
pad4 = doc.addObject("PartDesign::Pad", "Pad003")
body11.addObject(pad4)
pad4.Profile = sketch13
pad4.Type = "TwoLengths"
pad4.Length = Q("1.57 in")
pad4.Length2 = Q("1.32 in")

sketch14 = doc.addObject("Sketcher::SketchObject", "Sketch013")
body11.addObject(sketch14)
sketch14.AttachmentSupport = (doc.getObject("YZ_Plane010"), [""])
sketch14.MapMode = "FlatFace"
sketch14.addGeometry(Part.Circle(Vector(64, 167, 0), Vector(0, 0, 1), 26), False)
sketch14.addConstraint([
    Sketcher.Constraint("Diameter", 0, Q("52.416658 mm")),
    Sketcher.Constraint("DistanceX", -1, 1, 0, 3, Q("63.830897 mm")),
    Sketcher.Constraint("DistanceY", -1, 1, 0, 3, Q("166.803956 mm")),
])
pad5 = doc.addObject("PartDesign::Pad", "Pad004")
body11.addObject(pad5)
pad5.Profile = sketch14
pad5.Type = "TwoLengths"
pad5.Length = Q("1.77 in")
pad5.Length2 = Q("1.48 in")

sketch15 = doc.addObject("Sketcher::SketchObject", "Sketch014")
body11.addObject(sketch15)
sketch15.AttachmentSupport = (doc.getObject("YZ_Plane010"), [""])
sketch15.MapMode = "FlatFace"
sketch15.addGeometry([
    Part.LineSegment(Vector(55, 315, 0), Vector(55, 161, 0)),
    Part.LineSegment(Vector(55, 161, 0), Vector(134, 161, 0)),
    Part.LineSegment(Vector(134, 161, 0), Vector(134, 315, 0)),
    Part.LineSegment(Vector(134, 315, 0), Vector(55, 315, 0)),
], False)
sketch15.addConstraint([
    Sketcher.Constraint("Coincident", 0, 2, 1, 1),
    Sketcher.Constraint("Coincident", 1, 2, 2, 1),
    Sketcher.Constraint("Coincident", 2, 2, 3, 1),
    Sketcher.Constraint("Coincident", 3, 2, 0, 1),
    Sketcher.Constraint("Vertical", 0),
    Sketcher.Constraint("Horizontal", 1),
    Sketcher.Constraint("Vertical", 2),
    Sketcher.Constraint("Horizontal", 3),
    Sketcher.Constraint("DistanceX", 1, 1, 1, 2, Q("78.994103 mm")),
    Sketcher.Constraint("DistanceY", 0, 2, 0, 1, Q("153.952032 mm")),
    Sketcher.Constraint("DistanceY", -1, 1, 0, 2, Q("161.037952 mm")),
    Sketcher.Constraint("DistanceX", -1, 1, 1, 2, Q("134.034619 mm")),
])
pad6 = doc.addObject("PartDesign::Pad", "Pad005")
body11.addObject(pad6)
pad6.Profile = sketch15
pad6.Type = "TwoLengths"
pad6.Length = Q("1.54 in")
pad6.Length2 = Q("1.27 in")

sketch16 = doc.addObject("Sketcher::SketchObject", "Sketch015")
body11.addObject(sketch16)
sketch16.AttachmentSupport = (doc.getObject("YZ_Plane010"), [""])
sketch16.MapMode = "FlatFace"
sketch16.addGeometry([
    Part.LineSegment(Vector(134, 345, 0), Vector(134, 162, 0)),
    Part.LineSegment(Vector(134, 162, 0), Vector(262, 162, 0)),
    Part.LineSegment(Vector(262, 162, 0), Vector(262, 345, 0)),
    Part.LineSegment(Vector(262, 345, 0), Vector(134, 345, 0)),
], False)
sketch16.addConstraint([
    Sketcher.Constraint("Coincident", 0, 2, 1, 1),
    Sketcher.Constraint("Coincident", 1, 2, 2, 1),
    Sketcher.Constraint("Coincident", 2, 2, 3, 1),
    Sketcher.Constraint("Coincident", 3, 2, 0, 1),
    Sketcher.Constraint("Vertical", 0),
    Sketcher.Constraint("Horizontal", 1),
    Sketcher.Constraint("Vertical", 2),
    Sketcher.Constraint("Horizontal", 3),
    Sketcher.Constraint("DistanceX", 1, 1, 1, 2, Q("128.005072 mm")),
    Sketcher.Constraint("DistanceY", 0, 2, 0, 1, Q("182.781994 mm")),
    Sketcher.Constraint("DistanceX", -1, 1, 0, 2, Q("134.034619 mm")),
    Sketcher.Constraint("DistanceY", -1, 1, 0, 2, Q("162.191153 mm")),
])
pad7 = doc.addObject("PartDesign::Pad", "Pad006")
body11.addObject(pad7)
pad7.Profile = sketch16
pad7.Type = "TwoLengths"
pad7.Length = Q("1.79 in")
pad7.Length2 = Q("1.5 in")
body12 = doc.addObject("PartDesign::Body", "Body011")

sketch17 = doc.addObject("Sketcher::SketchObject", "Sketch016")
body12.addObject(sketch17)
sketch17.AttachmentSupport = (doc.getObject("YZ_Plane011"), [""])
sketch17.MapMode = "FlatFace"
sketch17.addGeometry([
    Part.LineSegment(Vector(13, 33, 0), Vector(0, 33, 0)),
    Part.LineSegment(Vector(0, 33, 0), Vector(13, 20, 0)),
    Part.LineSegment(Vector(13, 20, 0), Vector(13, 33, 0)),
], False)
sketch17.addConstraint([
    Sketcher.Constraint("Coincident", 0, 2, 1, 1),
    Sketcher.Constraint("Coincident", 1, 2, 2, 1),
    Sketcher.Constraint("Coincident", 2, 2, 0, 1),
    Sketcher.Constraint("Horizontal", 0),
    Sketcher.Constraint("Vertical", 2),
    Sketcher.Constraint("PointOnObject", 0, 2, -2),
    Sketcher.Constraint("DistanceX", 0, 2, 0, 1, Q("12.580857 mm")),
    Sketcher.Constraint("DistanceY", 2, 1, 2, 2, Q("13.769676 mm")),
    Sketcher.Constraint("DistanceY", -1, 1, 0, 2, Q("33.308074 mm")),
])
pad8 = doc.addObject("PartDesign::Pad", "Pad007")
body12.addObject(pad8)
pad8.Profile = sketch17
pad8.Type = "TwoLengths"
pad8.Length = Q("1.38 in")
pad8.Length2 = Q("1.6 in")
pad8.Reversed = True
body13 = doc.addObject("PartDesign::Body", "Body012")

sketch18 = doc.addObject("Sketcher::SketchObject", "Sketch017")
body13.addObject(sketch18)
sketch18.AttachmentSupport = (doc.getObject("YZ_Plane012"), [""])
sketch18.MapMode = "FlatFace"
sketch18.addGeometry([
    Part.LineSegment(Vector(12.6, 67.7, 0), Vector(0, 62.8, 0)),
    Part.LineSegment(Vector(0, 62.8, 0), Vector(12.6, 62.8, 0)),
    Part.LineSegment(Vector(12.6, 62.8, 0), Vector(12.6, 67.7, 0)),
], False)
sketch18.addConstraint([
    Sketcher.Constraint("Coincident", 0, 2, 1, 1),
    Sketcher.Constraint("Coincident", 1, 2, 2, 1),
    Sketcher.Constraint("Coincident", 2, 2, 0, 1),
    Sketcher.Constraint("Horizontal", 1),
    Sketcher.Constraint("Vertical", 2),
    Sketcher.Constraint("PointOnObject", 0, 2, -2),
    Sketcher.Constraint("DistanceY", 2, 1, 2, 2, Q("4.97165 mm")),
    Sketcher.Constraint("DistanceX", 1, 1, 1, 2, Q("12.580857 mm")),
    Sketcher.Constraint("DistanceY", -1, 1, 0, 2, Q("62.754244 mm")),
])
pad9 = doc.addObject("PartDesign::Pad", "Pad008")
body13.addObject(pad9)
pad9.Profile = sketch18
pad9.Type = "TwoLengths"
pad9.Length = Q("1.38 in")
pad9.Length2 = Q("1.6 in")
pad9.Reversed = True
body14 = doc.addObject("PartDesign::Body", "Body013")

sketch19 = doc.addObject("Sketcher::SketchObject", "Sketch018")
body14.addObject(sketch19)
sketch19.AttachmentSupport = (doc.getObject("YZ_Plane013"), [""])
sketch19.MapMode = "FlatFace"
sketch19.addGeometry([
    Part.LineSegment(Vector(263, 322, 0), Vector(263, 163, 0)),
    Part.LineSegment(Vector(263, 163, 0), Vector(382, 163, 0)),
    Part.LineSegment(Vector(382, 163, 0), Vector(382, 322, 0)),
    Part.LineSegment(Vector(382, 322, 0), Vector(263, 322, 0)),
], False)
sketch19.addConstraint([
    Sketcher.Constraint("Coincident", 0, 2, 1, 1),
    Sketcher.Constraint("Coincident", 1, 2, 2, 1),
    Sketcher.Constraint("Coincident", 2, 2, 3, 1),
    Sketcher.Constraint("Coincident", 3, 2, 0, 1),
    Sketcher.Constraint("Vertical", 0),
    Sketcher.Constraint("Horizontal", 1),
    Sketcher.Constraint("Vertical", 2),
    Sketcher.Constraint("Horizontal", 3),
    Sketcher.Constraint("DistanceX", 1, 1, 1, 2, Q("119.356066 mm")),
    Sketcher.Constraint("DistanceY", 0, 2, 0, 1, Q("158.564836 mm")),
    Sketcher.Constraint("DistanceY", -1, 1, 2, 2, Q("321.909189 mm")),
    Sketcher.Constraint("DistanceX", -1, 1, 0, 2, Q("263.133407 mm")),
])
pad10 = doc.addObject("PartDesign::Pad", "Pad009")
body14.addObject(pad10)
pad10.Profile = sketch19
pad10.Type = "TwoLengths"
pad10.Length = Q("1.56 in")
pad10.Length2 = Q("1.27 in")
body15 = doc.addObject("PartDesign::Body", "Body014")

sketch20 = doc.addObject("Sketcher::SketchObject", "Sketch019")
body15.addObject(sketch20)
sketch20.AttachmentSupport = (doc.getObject("YZ_Plane014"), [""])
sketch20.MapMode = "FlatFace"
sketch20.addGeometry([
    Part.LineSegment(Vector(21, 256, 0), Vector(21, 207, 0)),
    Part.LineSegment(Vector(21, 207, 0), Vector(55, 207, 0)),
    Part.LineSegment(Vector(55, 207, 0), Vector(55, 256, 0)),
    Part.LineSegment(Vector(55, 256, 0), Vector(21, 256, 0)),
], False)
sketch20.addConstraint([
    Sketcher.Constraint("Coincident", 0, 2, 1, 1),
    Sketcher.Constraint("Coincident", 1, 2, 2, 1),
    Sketcher.Constraint("Coincident", 2, 2, 3, 1),
    Sketcher.Constraint("Coincident", 3, 2, 0, 1),
    Sketcher.Constraint("Vertical", 0),
    Sketcher.Constraint("Horizontal", 1),
    Sketcher.Constraint("Vertical", 2),
    Sketcher.Constraint("Horizontal", 3),
    Sketcher.Constraint("DistanceX", 1, 1, 1, 2, Q("33.442756 mm")),
    Sketcher.Constraint("DistanceY", 0, 2, 0, 1, Q("48.434332 mm")),
    Sketcher.Constraint("DistanceX", -1, 1, 0, 2, Q("21.151831 mm")),
    Sketcher.Constraint("DistanceY", -1, 1, 0, 2, Q("207.165912 mm")),
])
pad11 = doc.addObject("PartDesign::Pad", "Pad010")
body15.addObject(pad11)
pad11.Profile = sketch20
pad11.Type = "TwoLengths"
pad11.Length = Q("1 in")
pad11.Length2 = Q("0.73 in")

sketch21 = doc.addObject("Sketcher::SketchObject", "Sketch020")
body15.addObject(sketch21)
sketch21.AttachmentSupport = (doc.getObject("YZ_Plane014"), [""])
sketch21.MapMode = "FlatFace"
sketch21.addGeometry([
    Part.LineSegment(Vector(22, 199, 0), Vector(22, 286, 0)),
    Part.LineSegment(Vector(22, 286, 0), Vector(-51, 286, 0)),
    Part.LineSegment(Vector(-51, 286, 0), Vector(-120, 230, 0)),
    Part.LineSegment(Vector(-120, 230, 0), Vector(-120, 199, 0)),
    Part.LineSegment(Vector(-120, 199, 0), Vector(22, 199, 0)),
], False)
sketch21.addConstraint([
    Sketcher.Constraint("Coincident", 0, 2, 1, 1),
    Sketcher.Constraint("Coincident", 1, 2, 2, 1),
    Sketcher.Constraint("Coincident", 2, 2, 3, 1),
    Sketcher.Constraint("Coincident", 3, 2, 4, 1),
    Sketcher.Constraint("Coincident", 4, 2, 0, 1),
    Sketcher.Constraint("Vertical", 0),
    Sketcher.Constraint("Horizontal", 1),
    Sketcher.Constraint("Vertical", 3),
    Sketcher.Constraint("Horizontal", 4),
    Sketcher.Constraint("DistanceY", 0, 1, 0, 2, Q("87.643102 mm")),
    Sketcher.Constraint("DistanceX", 4, 1, 4, 2, Q("141.84346 mm")),
    Sketcher.Constraint("Distance", 2, Q("88.970241 mm")),
    Sketcher.Constraint("DistanceX", 1, 2, 1, 1, Q("72.651528 mm")),
    Sketcher.Constraint("DistanceX", -1, 1, 0, 2, Q("21.924712 mm")),
    Sketcher.Constraint("DistanceY", -1, 1, 3, 2, Q("198.51692 mm")),
])
pad12 = doc.addObject("PartDesign::Pad", "Pad011")
body15.addObject(pad12)
pad12.Profile = sketch21
pad12.Type = "TwoLengths"
pad12.Length = Q("1.54 in")
pad12.Length2 = Q("1.3 in")

doc.recompute()
